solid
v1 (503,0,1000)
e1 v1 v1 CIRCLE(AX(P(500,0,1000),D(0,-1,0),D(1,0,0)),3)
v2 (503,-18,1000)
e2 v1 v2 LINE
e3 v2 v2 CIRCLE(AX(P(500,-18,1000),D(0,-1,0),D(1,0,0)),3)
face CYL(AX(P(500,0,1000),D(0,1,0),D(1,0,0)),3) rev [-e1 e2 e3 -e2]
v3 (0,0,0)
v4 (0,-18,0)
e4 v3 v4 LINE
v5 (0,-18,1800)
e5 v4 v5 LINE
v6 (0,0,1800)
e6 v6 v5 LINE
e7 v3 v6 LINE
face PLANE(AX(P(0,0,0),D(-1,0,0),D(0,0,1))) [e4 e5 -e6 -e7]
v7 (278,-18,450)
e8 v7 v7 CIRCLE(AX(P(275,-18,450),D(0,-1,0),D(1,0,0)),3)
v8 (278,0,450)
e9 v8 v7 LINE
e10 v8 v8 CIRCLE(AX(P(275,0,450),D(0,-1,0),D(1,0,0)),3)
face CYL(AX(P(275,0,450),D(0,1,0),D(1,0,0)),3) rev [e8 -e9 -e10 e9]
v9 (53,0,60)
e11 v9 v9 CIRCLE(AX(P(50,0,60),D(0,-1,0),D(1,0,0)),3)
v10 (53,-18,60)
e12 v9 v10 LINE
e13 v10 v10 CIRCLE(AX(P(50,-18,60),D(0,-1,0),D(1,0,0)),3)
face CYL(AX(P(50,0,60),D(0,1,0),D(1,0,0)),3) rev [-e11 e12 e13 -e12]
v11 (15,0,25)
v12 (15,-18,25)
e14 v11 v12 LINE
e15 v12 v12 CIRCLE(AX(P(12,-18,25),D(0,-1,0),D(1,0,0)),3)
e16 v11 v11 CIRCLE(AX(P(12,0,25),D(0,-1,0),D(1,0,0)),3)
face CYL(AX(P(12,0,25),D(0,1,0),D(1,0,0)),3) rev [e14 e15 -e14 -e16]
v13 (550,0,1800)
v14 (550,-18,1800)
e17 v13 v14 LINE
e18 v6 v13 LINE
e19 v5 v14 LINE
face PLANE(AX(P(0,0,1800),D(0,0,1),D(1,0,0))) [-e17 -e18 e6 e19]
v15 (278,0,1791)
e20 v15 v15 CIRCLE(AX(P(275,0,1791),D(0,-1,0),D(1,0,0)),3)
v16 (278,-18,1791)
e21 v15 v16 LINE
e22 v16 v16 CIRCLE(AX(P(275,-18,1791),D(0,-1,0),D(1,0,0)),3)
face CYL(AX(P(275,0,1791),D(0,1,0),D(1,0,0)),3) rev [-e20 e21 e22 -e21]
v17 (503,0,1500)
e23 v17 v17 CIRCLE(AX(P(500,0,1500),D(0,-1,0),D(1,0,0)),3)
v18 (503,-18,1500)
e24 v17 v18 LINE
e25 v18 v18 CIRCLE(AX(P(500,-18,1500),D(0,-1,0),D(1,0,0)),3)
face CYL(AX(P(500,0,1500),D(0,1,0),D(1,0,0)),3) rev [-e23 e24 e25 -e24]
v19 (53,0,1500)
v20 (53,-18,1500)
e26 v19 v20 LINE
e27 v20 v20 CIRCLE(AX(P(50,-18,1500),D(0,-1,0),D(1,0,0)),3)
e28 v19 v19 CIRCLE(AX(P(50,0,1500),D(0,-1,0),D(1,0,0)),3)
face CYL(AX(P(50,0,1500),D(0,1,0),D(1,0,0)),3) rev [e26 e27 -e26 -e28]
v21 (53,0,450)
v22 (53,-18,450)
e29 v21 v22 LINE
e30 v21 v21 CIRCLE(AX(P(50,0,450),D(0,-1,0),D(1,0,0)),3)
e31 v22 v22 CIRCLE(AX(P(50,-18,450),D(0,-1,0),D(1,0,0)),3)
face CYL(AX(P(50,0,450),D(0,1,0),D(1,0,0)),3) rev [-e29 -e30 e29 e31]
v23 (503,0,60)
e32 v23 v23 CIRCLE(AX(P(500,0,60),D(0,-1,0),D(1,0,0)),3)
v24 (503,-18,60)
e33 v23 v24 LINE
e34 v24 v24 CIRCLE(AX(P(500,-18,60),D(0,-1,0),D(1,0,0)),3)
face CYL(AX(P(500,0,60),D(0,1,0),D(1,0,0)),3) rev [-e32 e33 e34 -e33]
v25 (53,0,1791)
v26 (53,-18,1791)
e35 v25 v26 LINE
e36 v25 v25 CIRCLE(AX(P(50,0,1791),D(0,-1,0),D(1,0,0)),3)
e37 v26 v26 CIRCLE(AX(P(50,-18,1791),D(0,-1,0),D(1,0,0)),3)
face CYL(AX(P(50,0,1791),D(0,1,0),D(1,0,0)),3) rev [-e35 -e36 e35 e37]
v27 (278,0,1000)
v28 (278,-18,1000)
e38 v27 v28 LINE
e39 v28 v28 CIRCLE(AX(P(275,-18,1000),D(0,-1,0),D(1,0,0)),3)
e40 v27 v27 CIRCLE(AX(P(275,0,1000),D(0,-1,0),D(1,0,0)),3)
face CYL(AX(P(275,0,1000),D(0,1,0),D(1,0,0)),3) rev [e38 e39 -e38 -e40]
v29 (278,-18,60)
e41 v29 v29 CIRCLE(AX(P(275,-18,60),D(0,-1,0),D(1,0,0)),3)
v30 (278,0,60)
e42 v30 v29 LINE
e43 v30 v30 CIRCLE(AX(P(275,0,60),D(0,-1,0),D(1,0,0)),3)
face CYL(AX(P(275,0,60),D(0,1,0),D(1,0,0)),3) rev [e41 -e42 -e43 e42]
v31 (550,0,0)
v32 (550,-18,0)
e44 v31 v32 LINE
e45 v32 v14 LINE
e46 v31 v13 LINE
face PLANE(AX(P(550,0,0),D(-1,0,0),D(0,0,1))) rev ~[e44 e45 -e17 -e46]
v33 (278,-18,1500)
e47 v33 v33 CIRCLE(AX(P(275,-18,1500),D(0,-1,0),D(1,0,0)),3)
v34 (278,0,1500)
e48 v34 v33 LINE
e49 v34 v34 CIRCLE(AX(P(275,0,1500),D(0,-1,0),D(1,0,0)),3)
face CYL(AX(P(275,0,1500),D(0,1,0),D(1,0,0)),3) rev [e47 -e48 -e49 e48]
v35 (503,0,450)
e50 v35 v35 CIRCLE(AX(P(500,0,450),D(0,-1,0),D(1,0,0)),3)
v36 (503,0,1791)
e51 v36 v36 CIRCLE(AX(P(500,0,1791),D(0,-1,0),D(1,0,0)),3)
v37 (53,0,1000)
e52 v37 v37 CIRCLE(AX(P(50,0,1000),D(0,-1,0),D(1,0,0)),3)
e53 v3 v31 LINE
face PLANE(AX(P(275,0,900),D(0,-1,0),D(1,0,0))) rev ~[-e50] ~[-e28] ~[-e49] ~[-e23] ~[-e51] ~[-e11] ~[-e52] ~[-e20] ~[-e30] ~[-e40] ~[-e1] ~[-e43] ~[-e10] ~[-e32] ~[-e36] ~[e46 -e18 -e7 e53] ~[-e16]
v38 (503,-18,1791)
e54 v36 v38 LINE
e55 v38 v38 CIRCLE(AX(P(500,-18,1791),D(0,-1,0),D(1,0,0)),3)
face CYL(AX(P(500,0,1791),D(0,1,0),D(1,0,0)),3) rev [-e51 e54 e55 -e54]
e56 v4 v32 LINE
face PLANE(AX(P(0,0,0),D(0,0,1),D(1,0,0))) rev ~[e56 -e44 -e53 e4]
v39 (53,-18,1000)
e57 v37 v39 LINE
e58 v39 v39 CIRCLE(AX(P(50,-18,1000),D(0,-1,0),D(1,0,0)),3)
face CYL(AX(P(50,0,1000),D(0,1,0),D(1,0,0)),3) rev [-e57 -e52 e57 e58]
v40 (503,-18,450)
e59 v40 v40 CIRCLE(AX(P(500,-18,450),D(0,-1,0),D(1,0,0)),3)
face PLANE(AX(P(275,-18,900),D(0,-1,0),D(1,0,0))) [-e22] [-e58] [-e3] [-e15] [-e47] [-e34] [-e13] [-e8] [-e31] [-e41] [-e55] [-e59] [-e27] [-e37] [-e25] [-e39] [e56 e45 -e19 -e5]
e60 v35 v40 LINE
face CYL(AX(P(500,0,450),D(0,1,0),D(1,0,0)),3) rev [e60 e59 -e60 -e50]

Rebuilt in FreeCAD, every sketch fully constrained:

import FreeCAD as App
import Part
import Sketcher

V = App.Vector
Q = App.Units.Quantity


def add_polygon(sketch, points):
    """Adds a closed chain of lines whose ends are joined by coincident constraints."""
    first, n = sketch.GeometryCount, len(points)
    for a, b in zip(points, points[1:] + points[:1]):
        sketch.addGeometry(Part.LineSegment(App.Vector(*a, 0), App.Vector(*b, 0)), False)
    for i in range(n):
        sketch.addConstraint(Sketcher.Constraint("Coincident", first + i, 2, first + (i + 1) % n, 1))

doc = App.newDocument("Part")
body = doc.addObject("PartDesign::Body", "Body")

sketch1 = body.newObject("Sketcher::SketchObject", "Sketch")
sketch1.AttachmentSupport = (doc.getObject("XZ_Plane"), [""])
sketch1.MapMode = "FlatFace"
add_polygon(sketch1, [(0, 1800), (0, 0), (550, 0), (550, 1800)])
sketch1.addGeometry(Part.Circle(V(12, 25, 0), V(0, 0, 1), 3), False)
sketch1.addGeometry(Part.Circle(V(50, 60, 0), V(0, 0, 1), 3), False)
sketch1.addGeometry(Part.Circle(V(50, 450, 0), V(0, 0, 1), 3), False)
sketch1.addGeometry(Part.Circle(V(275, 60, 0), V(0, 0, 1), 3), False)
sketch1.addGeometry(Part.Circle(V(275, 450, 0), V(0, 0, 1), 3), False)
sketch1.addGeometry(Part.Circle(V(500, 60, 0), V(0, 0, 1), 3), False)
sketch1.addGeometry(Part.Circle(V(500, 450, 0), V(0, 0, 1), 3), False)
sketch1.addGeometry(Part.Circle(V(50, 1000, 0), V(0, 0, 1), 3), False)
sketch1.addGeometry(Part.Circle(V(50, 1500, 0), V(0, 0, 1), 3), False)
sketch1.addGeometry(Part.Circle(V(50, 1791, 0), V(0, 0, 1), 3), False)
sketch1.addGeometry(Part.Circle(V(275, 1000, 0), V(0, 0, 1), 3), False)
sketch1.addGeometry(Part.Circle(V(500, 1000, 0), V(0, 0, 1), 3), False)
sketch1.addGeometry(Part.Circle(V(275, 1500, 0), V(0, 0, 1), 3), False)
sketch1.addGeometry(Part.Circle(V(275, 1791, 0), V(0, 0, 1), 3), False)
sketch1.addGeometry(Part.Circle(V(500, 1500, 0), V(0, 0, 1), 3), False)
sketch1.addGeometry(Part.Circle(V(500, 1791, 0), V(0, 0, 1), 3), False)
sketch1.addConstraint([
    Sketcher.Constraint("Vertical", 0),
    Sketcher.Constraint("Horizontal", 1),
    Sketcher.Constraint("Vertical", 2),
    Sketcher.Constraint("Horizontal", 3),
    Sketcher.Constraint("Coincident", 0, 2, -1, 1),
    Sketcher.Constraint("Equal", 4, 5),
    Sketcher.Constraint("Equal", 5, 6),
    Sketcher.Constraint("Equal", 6, 7),
    Sketcher.Constraint("Equal", 7, 8),
    Sketcher.Constraint("Equal", 8, 9),
    Sketcher.Constraint("Equal", 9, 10),
    Sketcher.Constraint("Equal", 10, 11),
    Sketcher.Constraint("Equal", 11, 12),
    Sketcher.Constraint("Equal", 12, 13),
    Sketcher.Constraint("Equal", 13, 14),
    Sketcher.Constraint("Equal", 14, 15),
    Sketcher.Constraint("Equal", 15, 16),
    Sketcher.Constraint("Equal", 16, 17),
    Sketcher.Constraint("Equal", 17, 18),
    Sketcher.Constraint("Equal", 18, 19),
    Sketcher.Constraint("Horizontal", 5, 3, 7, 3),
    Sketcher.Constraint("Horizontal", 6, 3, 8, 3),
    Sketcher.Constraint("Horizontal", 7, 3, 9, 3),
    Sketcher.Constraint("Horizontal", 8, 3, 10, 3),
    Sketcher.Constraint("Horizontal", 11, 3, 14, 3),
    Sketcher.Constraint("Horizontal", 14, 3, 15, 3),
    Sketcher.Constraint("Horizontal", 12, 3, 16, 3),
    Sketcher.Constraint("Horizontal", 13, 3, 17, 3),
    Sketcher.Constraint("Horizontal", 16, 3, 18, 3),
    Sketcher.Constraint("Horizontal", 17, 3, 19, 3),
    Sketcher.Constraint("Vertical", 5, 3, 6, 3),
    Sketcher.Constraint("Vertical", 7, 3, 8, 3),
    Sketcher.Constraint("Vertical", 9, 3, 10, 3),
    Sketcher.Constraint("Vertical", 6, 3, 11, 3),
    Sketcher.Constraint("Vertical", 11, 3, 12, 3),
    Sketcher.Constraint("Vertical", 12, 3, 13, 3),
    Sketcher.Constraint("Vertical", 8, 3, 14, 3),
    Sketcher.Constraint("Vertical", 10, 3, 15, 3),
    Sketcher.Constraint("Vertical", 14, 3, 16, 3),
    Sketcher.Constraint("Vertical", 16, 3, 17, 3),
    Sketcher.Constraint("Vertical", 15, 3, 18, 3),
    Sketcher.Constraint("Vertical", 18, 3, 19, 3),
    Sketcher.Constraint("Diameter", 4, Q("6 mm")),
    Sketcher.Constraint("DistanceX", 1, 1, 1, 2, Q("550 mm")),
    Sketcher.Constraint("DistanceY", 0, 2, 0, 1, Q("1800 mm")),
    Sketcher.Constraint("DistanceX", -1, 1, 4, 3, Q("12 mm")),
    Sketcher.Constraint("DistanceY", -1, 1, 4, 3, Q("25 mm")),
    Sketcher.Constraint("DistanceX", -1, 1, 5, 3, Q("50 mm")),
    Sketcher.Constraint("DistanceY", -1, 1, 5, 3, Q("60 mm")),
    Sketcher.Constraint("DistanceY", -1, 1, 6, 3, Q("450 mm")),
    Sketcher.Constraint("DistanceX", -1, 1, 7, 3, Q("275 mm")),
    Sketcher.Constraint("DistanceX", -1, 1, 9, 3, Q("500 mm")),
    Sketcher.Constraint("DistanceY", -1, 1, 11, 3, Q("1000 mm")),
    Sketcher.Constraint("DistanceY", -1, 1, 12, 3, Q("1500 mm")),
    Sketcher.Constraint("DistanceY", -1, 1, 13, 3, Q("1791 mm")),
])
pad1 = body.newObject("PartDesign::Pad", "Pad")
pad1.Profile = sketch1
pad1.Length = 18

doc.recompute()
